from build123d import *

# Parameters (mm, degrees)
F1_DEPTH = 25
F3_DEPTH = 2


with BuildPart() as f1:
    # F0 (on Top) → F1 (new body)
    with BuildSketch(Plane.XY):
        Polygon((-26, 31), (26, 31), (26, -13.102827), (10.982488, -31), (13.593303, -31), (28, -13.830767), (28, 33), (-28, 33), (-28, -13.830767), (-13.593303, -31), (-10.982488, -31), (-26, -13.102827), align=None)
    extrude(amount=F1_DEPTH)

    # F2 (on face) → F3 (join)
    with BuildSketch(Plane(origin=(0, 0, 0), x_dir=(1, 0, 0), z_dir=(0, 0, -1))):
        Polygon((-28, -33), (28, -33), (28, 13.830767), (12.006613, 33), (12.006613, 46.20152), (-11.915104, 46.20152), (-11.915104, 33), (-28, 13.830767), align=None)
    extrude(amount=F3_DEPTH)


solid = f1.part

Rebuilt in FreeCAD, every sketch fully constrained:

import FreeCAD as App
import Part
import Sketcher
from FreeCAD import Vector
Q = App.Units.Quantity


def add_polygon(sketch, points):
    """Adds a closed chain of lines whose ends are joined by coincident constraints."""
    first, n = sketch.GeometryCount, len(points)
    for a, b in zip(points, points[1:] + points[:1]):
        sketch.addGeometry(Part.LineSegment(App.Vector(*a, 0), App.Vector(*b, 0)), False)
    for i in range(n):
        sketch.addConstraint(Sketcher.Constraint("Coincident", first + i, 2, first + (i + 1) % n, 1))

doc = App.newDocument("Part")
params = doc.addObject("Spreadsheet::Sheet", "Params")
for row, (alias, value) in enumerate([
    ("sketch1_width", "52 mm"),
    ("sketch1_width2", "56 mm"),
    ("pad1_length", "25 mm"),
    ("sketch2_width", "56 mm"),
    ("pad2_length", "2 mm"),
], start=1):
    params.set(f"A{row}", alias)
    params.set(f"B{row}", "=" + value)
    params.setAlias(f"B{row}", alias)

body = doc.addObject("PartDesign::Body", "Body")

sketch1 = body.newObject("Sketcher::SketchObject", "Sketch")
sketch1.AttachmentSupport = (doc.getObject("XY_Plane"), [""])
sketch1.MapMode = "FlatFace"
add_polygon(sketch1, [(-26, 31), (26, 31), (26, -13.1), (11, -31), (13.6, -31), (28, -13.8), (28, 33), (-28, 33), (-28, -13.8), (-13.6, -31), (-11, -31), (-26, -13.1)])
sketch1.addConstraint([
    Sketcher.Constraint("Horizontal", 0),
    Sketcher.Constraint("Vertical", 1),
    Sketcher.Constraint("Horizontal", 3),
    Sketcher.Constraint("Vertical", 5),
    Sketcher.Constraint("Horizontal", 6),
    Sketcher.Constraint("Vertical", 7),
    Sketcher.Constraint("Horizontal", 9),
    Sketcher.Constraint("Vertical", 11),
    Sketcher.Constraint("Symmetric", 4, 2, 7, 2, -2),
    Sketcher.Constraint("Symmetric", 3, 2, 8, 2, -2),
    Sketcher.Constraint("Symmetric", 1, 2, 10, 2, -2),
    Sketcher.Constraint("Parallel", 2, 4),
    Sketcher.Constraint("Parallel", 8, 10),
    Sketcher.Constraint("DistanceX", 0, 1, 0, 2, Q("52 mm")),
    Sketcher.Constraint("DistanceX", 6, 2, 6, 1, Q("56 mm")),
    Sketcher.Constraint("Angle", 2, Q("-130.000001 deg")),
    Sketcher.Constraint("DistanceY", -1, 1, 0, 2, Q("31 mm")),
    Sketcher.Constraint("DistanceY", 2, 2, -1, 1, Q("31 mm")),
    Sketcher.Constraint("DistanceY", -1, 1, 5, 2, Q("33 mm")),
    Sketcher.Constraint("Distance", 2, Q("23.363101 mm")),
    Sketcher.Constraint("Distance", 4, Q("22.412842 mm")),
])
sketch1.setExpression("Constraints[25]", "Params.sketch1_width")
sketch1.setExpression("Constraints[26]", "Params.sketch1_width2")
pad1 = body.newObject("PartDesign::Pad", "Pad")
pad1.Profile = sketch1
pad1.setExpression("Length", "Params.pad1_length")

sketch2 = body.newObject("Sketcher::SketchObject", "Sketch001")
sketch2.AttachmentSupport = (doc.getObject("XY_Plane"), [""])
sketch2.MapMode = "FlatFace"
add_polygon(sketch2, [(-28, 33), (28, 33), (28, -14), (12, -33), (12, -46), (-12, -46), (-12, -33), (-28, -14)])
sketch2.addConstraint([
    Sketcher.Constraint("Horizontal", 0),
    Sketcher.Constraint("Vertical", 1),
    Sketcher.Constraint("Vertical", 3),
    Sketcher.Constraint("Horizontal", 4),
    Sketcher.Constraint("Vertical", 5),
    Sketcher.Constraint("Vertical", 7),
    Sketcher.Constraint("Symmetric", 1, 2, 6, 2, -2),
    Sketcher.Constraint("Horizontal", 2, 2, 5, 2),
    Sketcher.Constraint("DistanceX", 0, 1, 0, 2, Q("56 mm")),
    Sketcher.Constraint("Angle", 6, Q("129.999999 deg")),
    Sketcher.Constraint("DistanceY", -1, 1, 0, 2, Q("33 mm")),
    Sketcher.Constraint("DistanceY", 2, 2, -1, 1, Q("33 mm")),
    Sketcher.Constraint("DistanceY", 3, 2, 3, 1, Q("13.20152 mm")),
    Sketcher.Constraint("DistanceX", 4, 2, 4, 1, Q("23.921717 mm")),
    Sketcher.Constraint("DistanceY", 1, 2, 1, 1, Q("46.830767 mm")),
])
sketch2.setExpression("Constraints[16]", "Params.sketch2_width")
pad2 = body.newObject("PartDesign::Pad", "Pad001")
pad2.Profile = sketch2
pad2.setExpression("Length", "Params.pad2_length")
pad2.Reversed = True

doc.recompute()
